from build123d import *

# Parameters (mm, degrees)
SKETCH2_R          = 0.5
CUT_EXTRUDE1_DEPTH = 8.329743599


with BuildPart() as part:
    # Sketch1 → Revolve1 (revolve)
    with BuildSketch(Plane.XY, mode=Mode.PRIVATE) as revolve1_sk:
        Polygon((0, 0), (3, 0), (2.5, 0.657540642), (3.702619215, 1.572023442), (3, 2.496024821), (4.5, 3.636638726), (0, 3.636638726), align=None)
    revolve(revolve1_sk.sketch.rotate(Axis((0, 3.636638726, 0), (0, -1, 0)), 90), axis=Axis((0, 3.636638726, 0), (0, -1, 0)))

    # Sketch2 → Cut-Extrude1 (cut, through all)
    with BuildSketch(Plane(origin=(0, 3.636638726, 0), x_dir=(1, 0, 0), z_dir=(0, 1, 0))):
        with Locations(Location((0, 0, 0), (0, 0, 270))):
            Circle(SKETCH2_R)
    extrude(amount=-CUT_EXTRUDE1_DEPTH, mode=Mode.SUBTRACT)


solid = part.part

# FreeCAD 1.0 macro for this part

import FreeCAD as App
import Part
import Sketcher

V = App.Vector
Q = App.Units.Quantity

doc = App.newDocument("Part")
body = doc.addObject("PartDesign::Body", "Body")

# Sketch on XY plane
sketch1 = body.newObject("Sketcher::SketchObject", "Sketch")
sketch1.AttachmentSupport = (doc.getObject("XY_Plane"), [""])
sketch1.MapMode = "FlatFace"
sketch1.addGeometry(Part.LineSegment(V(0, 0, 0), V(3, 0, 0)), False)
sketch1.addGeometry(Part.LineSegment(V(3, 0, 0), V(2.5, 0.7, 0)), False)
sketch1.addGeometry(Part.LineSegment(V(2.5, 0.7, 0), V(3.7, 1.6, 0)), False)
sketch1.addGeometry(Part.LineSegment(V(3.7, 1.6, 0), V(3, 2.5, 0)), False)
sketch1.addGeometry(Part.LineSegment(V(3, 2.5, 0), V(4.5, 3.6, 0)), False)
sketch1.addGeometry(Part.LineSegment(V(4.5, 3.6, 0), V(0, 3.6, 0)), False)
sketch1.addGeometry(Part.LineSegment(V(0, 3.6, 0), V(0, 0, 0)), False)
sketch1.addConstraint(Sketcher.Constraint("Coincident", 0, 2, 1, 1))
sketch1.addConstraint(Sketcher.Constraint("Coincident", 1, 2, 2, 1))
sketch1.addConstraint(Sketcher.Constraint("Coincident", 2, 2, 3, 1))
sketch1.addConstraint(Sketcher.Constraint("Coincident", 3, 2, 4, 1))
sketch1.addConstraint(Sketcher.Constraint("Coincident", 4, 2, 5, 1))
sketch1.addConstraint(Sketcher.Constraint("Coincident", 5, 2, 6, 1))
sketch1.addConstraint(Sketcher.Constraint("Coincident", 6, 2, 0, 1))
sketch1.addConstraint(Sketcher.Constraint("Horizontal", 0))
sketch1.addConstraint(Sketcher.Constraint("Horizontal", 5))
sketch1.addConstraint(Sketcher.Constraint("Vertical", 6))
sketch1.addConstraint(Sketcher.Constraint("Coincident", 6, 2, -1, 1))
sketch1.addConstraint(Sketcher.Constraint("Perpendicular", 1, 2))
sketch1.addConstraint(Sketcher.Constraint("Perpendicular", 2, 3))
sketch1.addConstraint(Sketcher.Constraint("Perpendicular", 3, 4))
sketch1.addConstraint(Sketcher.Constraint("Vertical", 0, 2, 3, 2))
sketch1.addConstraint(Sketcher.Constraint("DistanceX", 0, 1, 0, 2, Q("3 mm")))
sketch1.addConstraint(Sketcher.Constraint("DistanceX", 5, 2, 5, 1, Q("4.5 mm")))
sketch1.addConstraint(Sketcher.Constraint("DistanceX", 1, 2, 4, 2, Q("2 mm")))
sketch1.addConstraint(Sketcher.Constraint("DistanceY", 2, 2, 3, 2, Q("0.924001 mm")))
sketch1.addConstraint(Sketcher.Constraint("Distance", 3, Q("1.160798 mm")))
revolution = body.newObject("PartDesign::Revolution", "Revolution")
revolution.Profile = sketch1
revolution.ReferenceAxis = (sketch1, ["V_Axis"])
revolution.Angle = 360

# Sketch on XZ plane
sketch2 = body.newObject("Sketcher::SketchObject", "Sketch001")
sketch2.AttachmentSupport = (doc.getObject("XZ_Plane"), [""])
sketch2.MapMode = "FlatFace"
sketch2.AttachmentOffset = App.Placement(V(0, 0, -3.636639), App.Rotation())
sketch2.addGeometry(Part.Circle(V(0, 0, 0), V(0, 0, 1), 0.5), False)
sketch2.addConstraint(Sketcher.Constraint("Coincident", 0, 3, -1, 1))
sketch2.addConstraint(Sketcher.Constraint("Diameter", 0, Q("1 mm")))
pocket1 = body.newObject("PartDesign::Pocket", "Pocket")
pocket1.Profile = sketch2
pocket1.Type = "ThroughAll"
pocket1.Reversed = True

doc.recompute()
